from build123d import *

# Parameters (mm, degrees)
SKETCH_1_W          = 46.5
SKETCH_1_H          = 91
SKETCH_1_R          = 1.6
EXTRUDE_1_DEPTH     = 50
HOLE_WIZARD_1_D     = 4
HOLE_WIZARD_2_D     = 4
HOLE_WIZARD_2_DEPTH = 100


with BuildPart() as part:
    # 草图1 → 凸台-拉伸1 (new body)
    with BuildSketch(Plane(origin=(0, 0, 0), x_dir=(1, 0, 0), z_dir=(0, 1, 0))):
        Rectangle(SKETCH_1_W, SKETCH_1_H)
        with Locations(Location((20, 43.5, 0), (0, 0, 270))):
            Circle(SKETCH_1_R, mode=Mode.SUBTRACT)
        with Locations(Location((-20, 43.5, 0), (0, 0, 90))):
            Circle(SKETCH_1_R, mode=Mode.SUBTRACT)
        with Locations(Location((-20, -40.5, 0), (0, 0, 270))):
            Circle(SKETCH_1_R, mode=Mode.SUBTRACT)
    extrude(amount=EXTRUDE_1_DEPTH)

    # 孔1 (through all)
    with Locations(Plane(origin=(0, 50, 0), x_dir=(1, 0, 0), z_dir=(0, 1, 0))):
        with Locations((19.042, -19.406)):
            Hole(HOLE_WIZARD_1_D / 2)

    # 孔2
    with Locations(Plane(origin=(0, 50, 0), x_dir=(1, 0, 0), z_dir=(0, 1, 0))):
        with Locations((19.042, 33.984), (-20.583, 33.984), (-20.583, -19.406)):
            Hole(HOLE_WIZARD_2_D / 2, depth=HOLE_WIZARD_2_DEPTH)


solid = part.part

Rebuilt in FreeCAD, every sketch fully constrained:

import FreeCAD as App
import Part
import Sketcher
from FreeCAD import Vector
Q = App.Units.Quantity


def add_polygon(sketch, points):
    """Adds a closed chain of lines whose ends are joined by coincident constraints."""
    first, n = sketch.GeometryCount, len(points)
    for a, b in zip(points, points[1:] + points[:1]):
        sketch.addGeometry(Part.LineSegment(App.Vector(*a, 0), App.Vector(*b, 0)), False)
    for i in range(n):
        sketch.addConstraint(Sketcher.Constraint("Coincident", first + i, 2, first + (i + 1) % n, 1))

doc = App.newDocument("Part")
params = doc.addObject("Spreadsheet::Sheet", "Params")
for row, (alias, value) in enumerate([
    ("sketch1_diameter", "3.2 mm"),
    ("sketch1_height", "91 mm"),
    ("sketch1_width", "46.5 mm"),
    ("pad1_length", "50 mm"),
    ("sketch2_diameter", "4 mm"),
    ("hole_diameter", "4 mm"),
    ("sketch3_diameter", "4 mm"),
    ("hole2_diameter", "4 mm"),
    ("hole2_depth", "100 mm"),
], start=1):
    params.set(f"A{row}", alias)
    params.set(f"B{row}", "=" + value)
    params.setAlias(f"B{row}", alias)

body = doc.addObject("PartDesign::Body", "Body")

sketch1 = doc.addObject("Sketcher::SketchObject", "Sketch")
body.addObject(sketch1)
sketch1.AttachmentSupport = (doc.XZ_Plane, [""])
sketch1.MapMode = "FlatFace"
add_polygon(sketch1, [(-23.25, -45.5), (-23.25, 45.5), (23.25, 45.5), (23.25, -45.5)])
sketch1.addGeometry(Part.Circle(Vector(-20, 40.5, 0), Vector(0, 0, 1), 1.6), False)
sketch1.addGeometry(Part.Circle(Vector(-20, -43.5, 0), Vector(0, 0, 1), 1.6), False)
sketch1.addGeometry(Part.Circle(Vector(20, -43.5, 0), Vector(0, 0, 1), 1.6), False)
sketch1.addConstraint([
    Sketcher.Constraint("Vertical", 0),
    Sketcher.Constraint("Horizontal", 1),
    Sketcher.Constraint("Vertical", 2),
    Sketcher.Constraint("Horizontal", 3),
    Sketcher.Constraint("Equal", 4, 5),
    Sketcher.Constraint("Equal", 5, 6),
    Sketcher.Constraint("Symmetric", 0, 2, 2, 2, -1, 1),
    Sketcher.Constraint("Symmetric", 5, 3, 6, 3, -2),
    Sketcher.Constraint("Vertical", 4, 3, 5, 3),
    Sketcher.Constraint("Diameter", 4, Q("3.2 mm")),
    Sketcher.Constraint("DistanceY", 0, 1, 0, 2, Q("91 mm")),
    Sketcher.Constraint("DistanceX", 1, 1, 1, 2, Q("46.5 mm")),
    Sketcher.Constraint("DistanceX", 4, 3, -1, 1, Q("20 mm")),
    Sketcher.Constraint("DistanceY", 5, 3, 4, 3, Q("84 mm")),
    Sketcher.Constraint("DistanceY", 4, 3, 0, 2, Q("5 mm")),
])
sketch1.setExpression("Constraints[13]", "Params.sketch1_diameter")
sketch1.setExpression("Constraints[14]", "Params.sketch1_height")
sketch1.setExpression("Constraints[15]", "Params.sketch1_width")
pad1 = doc.addObject("PartDesign::Pad", "Pad")
body.addObject(pad1)
pad1.Profile = sketch1
pad1.setExpression("Length", "Params.pad1_length")
pad1.Reversed = True

sketch2 = doc.addObject("Sketcher::SketchObject", "Sketch001")
body.addObject(sketch2)
sketch2.AttachmentSupport = (doc.XZ_Plane, [""])
sketch2.MapMode = "FlatFace"
sketch2.AttachmentOffset = App.Placement(Vector(0, 0, -50), App.Rotation())
sketch2.addGeometry(Part.Circle(Vector(19.042, 19.406, 0), Vector(0, 0, 1), 2), False)
sketch2.addConstraint([
    Sketcher.Constraint("Diameter", 0, Q("4 mm")),
    Sketcher.Constraint("DistanceX", -1, 1, 0, 3, Q("19.042 mm")),
    Sketcher.Constraint("DistanceY", -1, 1, 0, 3, Q("19.406 mm")),
])
sketch2.setExpression("Constraints[0]", "Params.sketch2_diameter")
doc.recompute()
hole = doc.addObject("PartDesign::Hole", "Hole")
body.addObject(hole)
hole.Profile = sketch2
hole.ThreadType = "None"
hole.setExpression("Diameter", "Params.hole_diameter")
hole.DepthType = "ThroughAll"
hole.Reversed = True

sketch3 = doc.addObject("Sketcher::SketchObject", "Sketch002")
body.addObject(sketch3)
sketch3.AttachmentSupport = (doc.XZ_Plane, [""])
sketch3.MapMode = "FlatFace"
sketch3.AttachmentOffset = App.Placement(Vector(0, 0, -50), App.Rotation())
sketch3.addGeometry([
    Part.Circle(Vector(19.042, -33.984, 0), Vector(0, 0, 1), 2),
    Part.Circle(Vector(-20.583, -33.984, 0), Vector(0, 0, 1), 2),
    Part.Circle(Vector(-20.583, 19.406, 0), Vector(0, 0, 1), 2),
], False)
sketch3.addConstraint([
    Sketcher.Constraint("Equal", 0, 1),
    Sketcher.Constraint("Equal", 1, 2),
    Sketcher.Constraint("Horizontal", 0, 3, 1, 3),
    Sketcher.Constraint("Vertical", 1, 3, 2, 3),
    Sketcher.Constraint("Diameter", 0, Q("4 mm")),
    Sketcher.Constraint("DistanceY", 1, 3, 2, 3, Q("53.39 mm")),
    Sketcher.Constraint("DistanceX", -1, 1, 0, 3, Q("19.042 mm")),
    Sketcher.Constraint("DistanceY", 0, 3, -1, 1, Q("33.984 mm")),
    Sketcher.Constraint("DistanceX", 1, 3, -1, 1, Q("20.583 mm")),
])
sketch3.setExpression("Constraints[4]", "Params.sketch3_diameter")
doc.recompute()
hole2 = doc.addObject("PartDesign::Hole", "Hole001")
body.addObject(hole2)
hole2.Profile = sketch3
hole2.ThreadType = "None"
hole2.setExpression("Diameter", "Params.hole2_diameter")
hole2.DepthType = "Dimension"
hole2.setExpression("Depth", "Params.hole2_depth")
hole2.DrillPoint = "Flat"
hole2.Reversed = True

doc.recompute()
